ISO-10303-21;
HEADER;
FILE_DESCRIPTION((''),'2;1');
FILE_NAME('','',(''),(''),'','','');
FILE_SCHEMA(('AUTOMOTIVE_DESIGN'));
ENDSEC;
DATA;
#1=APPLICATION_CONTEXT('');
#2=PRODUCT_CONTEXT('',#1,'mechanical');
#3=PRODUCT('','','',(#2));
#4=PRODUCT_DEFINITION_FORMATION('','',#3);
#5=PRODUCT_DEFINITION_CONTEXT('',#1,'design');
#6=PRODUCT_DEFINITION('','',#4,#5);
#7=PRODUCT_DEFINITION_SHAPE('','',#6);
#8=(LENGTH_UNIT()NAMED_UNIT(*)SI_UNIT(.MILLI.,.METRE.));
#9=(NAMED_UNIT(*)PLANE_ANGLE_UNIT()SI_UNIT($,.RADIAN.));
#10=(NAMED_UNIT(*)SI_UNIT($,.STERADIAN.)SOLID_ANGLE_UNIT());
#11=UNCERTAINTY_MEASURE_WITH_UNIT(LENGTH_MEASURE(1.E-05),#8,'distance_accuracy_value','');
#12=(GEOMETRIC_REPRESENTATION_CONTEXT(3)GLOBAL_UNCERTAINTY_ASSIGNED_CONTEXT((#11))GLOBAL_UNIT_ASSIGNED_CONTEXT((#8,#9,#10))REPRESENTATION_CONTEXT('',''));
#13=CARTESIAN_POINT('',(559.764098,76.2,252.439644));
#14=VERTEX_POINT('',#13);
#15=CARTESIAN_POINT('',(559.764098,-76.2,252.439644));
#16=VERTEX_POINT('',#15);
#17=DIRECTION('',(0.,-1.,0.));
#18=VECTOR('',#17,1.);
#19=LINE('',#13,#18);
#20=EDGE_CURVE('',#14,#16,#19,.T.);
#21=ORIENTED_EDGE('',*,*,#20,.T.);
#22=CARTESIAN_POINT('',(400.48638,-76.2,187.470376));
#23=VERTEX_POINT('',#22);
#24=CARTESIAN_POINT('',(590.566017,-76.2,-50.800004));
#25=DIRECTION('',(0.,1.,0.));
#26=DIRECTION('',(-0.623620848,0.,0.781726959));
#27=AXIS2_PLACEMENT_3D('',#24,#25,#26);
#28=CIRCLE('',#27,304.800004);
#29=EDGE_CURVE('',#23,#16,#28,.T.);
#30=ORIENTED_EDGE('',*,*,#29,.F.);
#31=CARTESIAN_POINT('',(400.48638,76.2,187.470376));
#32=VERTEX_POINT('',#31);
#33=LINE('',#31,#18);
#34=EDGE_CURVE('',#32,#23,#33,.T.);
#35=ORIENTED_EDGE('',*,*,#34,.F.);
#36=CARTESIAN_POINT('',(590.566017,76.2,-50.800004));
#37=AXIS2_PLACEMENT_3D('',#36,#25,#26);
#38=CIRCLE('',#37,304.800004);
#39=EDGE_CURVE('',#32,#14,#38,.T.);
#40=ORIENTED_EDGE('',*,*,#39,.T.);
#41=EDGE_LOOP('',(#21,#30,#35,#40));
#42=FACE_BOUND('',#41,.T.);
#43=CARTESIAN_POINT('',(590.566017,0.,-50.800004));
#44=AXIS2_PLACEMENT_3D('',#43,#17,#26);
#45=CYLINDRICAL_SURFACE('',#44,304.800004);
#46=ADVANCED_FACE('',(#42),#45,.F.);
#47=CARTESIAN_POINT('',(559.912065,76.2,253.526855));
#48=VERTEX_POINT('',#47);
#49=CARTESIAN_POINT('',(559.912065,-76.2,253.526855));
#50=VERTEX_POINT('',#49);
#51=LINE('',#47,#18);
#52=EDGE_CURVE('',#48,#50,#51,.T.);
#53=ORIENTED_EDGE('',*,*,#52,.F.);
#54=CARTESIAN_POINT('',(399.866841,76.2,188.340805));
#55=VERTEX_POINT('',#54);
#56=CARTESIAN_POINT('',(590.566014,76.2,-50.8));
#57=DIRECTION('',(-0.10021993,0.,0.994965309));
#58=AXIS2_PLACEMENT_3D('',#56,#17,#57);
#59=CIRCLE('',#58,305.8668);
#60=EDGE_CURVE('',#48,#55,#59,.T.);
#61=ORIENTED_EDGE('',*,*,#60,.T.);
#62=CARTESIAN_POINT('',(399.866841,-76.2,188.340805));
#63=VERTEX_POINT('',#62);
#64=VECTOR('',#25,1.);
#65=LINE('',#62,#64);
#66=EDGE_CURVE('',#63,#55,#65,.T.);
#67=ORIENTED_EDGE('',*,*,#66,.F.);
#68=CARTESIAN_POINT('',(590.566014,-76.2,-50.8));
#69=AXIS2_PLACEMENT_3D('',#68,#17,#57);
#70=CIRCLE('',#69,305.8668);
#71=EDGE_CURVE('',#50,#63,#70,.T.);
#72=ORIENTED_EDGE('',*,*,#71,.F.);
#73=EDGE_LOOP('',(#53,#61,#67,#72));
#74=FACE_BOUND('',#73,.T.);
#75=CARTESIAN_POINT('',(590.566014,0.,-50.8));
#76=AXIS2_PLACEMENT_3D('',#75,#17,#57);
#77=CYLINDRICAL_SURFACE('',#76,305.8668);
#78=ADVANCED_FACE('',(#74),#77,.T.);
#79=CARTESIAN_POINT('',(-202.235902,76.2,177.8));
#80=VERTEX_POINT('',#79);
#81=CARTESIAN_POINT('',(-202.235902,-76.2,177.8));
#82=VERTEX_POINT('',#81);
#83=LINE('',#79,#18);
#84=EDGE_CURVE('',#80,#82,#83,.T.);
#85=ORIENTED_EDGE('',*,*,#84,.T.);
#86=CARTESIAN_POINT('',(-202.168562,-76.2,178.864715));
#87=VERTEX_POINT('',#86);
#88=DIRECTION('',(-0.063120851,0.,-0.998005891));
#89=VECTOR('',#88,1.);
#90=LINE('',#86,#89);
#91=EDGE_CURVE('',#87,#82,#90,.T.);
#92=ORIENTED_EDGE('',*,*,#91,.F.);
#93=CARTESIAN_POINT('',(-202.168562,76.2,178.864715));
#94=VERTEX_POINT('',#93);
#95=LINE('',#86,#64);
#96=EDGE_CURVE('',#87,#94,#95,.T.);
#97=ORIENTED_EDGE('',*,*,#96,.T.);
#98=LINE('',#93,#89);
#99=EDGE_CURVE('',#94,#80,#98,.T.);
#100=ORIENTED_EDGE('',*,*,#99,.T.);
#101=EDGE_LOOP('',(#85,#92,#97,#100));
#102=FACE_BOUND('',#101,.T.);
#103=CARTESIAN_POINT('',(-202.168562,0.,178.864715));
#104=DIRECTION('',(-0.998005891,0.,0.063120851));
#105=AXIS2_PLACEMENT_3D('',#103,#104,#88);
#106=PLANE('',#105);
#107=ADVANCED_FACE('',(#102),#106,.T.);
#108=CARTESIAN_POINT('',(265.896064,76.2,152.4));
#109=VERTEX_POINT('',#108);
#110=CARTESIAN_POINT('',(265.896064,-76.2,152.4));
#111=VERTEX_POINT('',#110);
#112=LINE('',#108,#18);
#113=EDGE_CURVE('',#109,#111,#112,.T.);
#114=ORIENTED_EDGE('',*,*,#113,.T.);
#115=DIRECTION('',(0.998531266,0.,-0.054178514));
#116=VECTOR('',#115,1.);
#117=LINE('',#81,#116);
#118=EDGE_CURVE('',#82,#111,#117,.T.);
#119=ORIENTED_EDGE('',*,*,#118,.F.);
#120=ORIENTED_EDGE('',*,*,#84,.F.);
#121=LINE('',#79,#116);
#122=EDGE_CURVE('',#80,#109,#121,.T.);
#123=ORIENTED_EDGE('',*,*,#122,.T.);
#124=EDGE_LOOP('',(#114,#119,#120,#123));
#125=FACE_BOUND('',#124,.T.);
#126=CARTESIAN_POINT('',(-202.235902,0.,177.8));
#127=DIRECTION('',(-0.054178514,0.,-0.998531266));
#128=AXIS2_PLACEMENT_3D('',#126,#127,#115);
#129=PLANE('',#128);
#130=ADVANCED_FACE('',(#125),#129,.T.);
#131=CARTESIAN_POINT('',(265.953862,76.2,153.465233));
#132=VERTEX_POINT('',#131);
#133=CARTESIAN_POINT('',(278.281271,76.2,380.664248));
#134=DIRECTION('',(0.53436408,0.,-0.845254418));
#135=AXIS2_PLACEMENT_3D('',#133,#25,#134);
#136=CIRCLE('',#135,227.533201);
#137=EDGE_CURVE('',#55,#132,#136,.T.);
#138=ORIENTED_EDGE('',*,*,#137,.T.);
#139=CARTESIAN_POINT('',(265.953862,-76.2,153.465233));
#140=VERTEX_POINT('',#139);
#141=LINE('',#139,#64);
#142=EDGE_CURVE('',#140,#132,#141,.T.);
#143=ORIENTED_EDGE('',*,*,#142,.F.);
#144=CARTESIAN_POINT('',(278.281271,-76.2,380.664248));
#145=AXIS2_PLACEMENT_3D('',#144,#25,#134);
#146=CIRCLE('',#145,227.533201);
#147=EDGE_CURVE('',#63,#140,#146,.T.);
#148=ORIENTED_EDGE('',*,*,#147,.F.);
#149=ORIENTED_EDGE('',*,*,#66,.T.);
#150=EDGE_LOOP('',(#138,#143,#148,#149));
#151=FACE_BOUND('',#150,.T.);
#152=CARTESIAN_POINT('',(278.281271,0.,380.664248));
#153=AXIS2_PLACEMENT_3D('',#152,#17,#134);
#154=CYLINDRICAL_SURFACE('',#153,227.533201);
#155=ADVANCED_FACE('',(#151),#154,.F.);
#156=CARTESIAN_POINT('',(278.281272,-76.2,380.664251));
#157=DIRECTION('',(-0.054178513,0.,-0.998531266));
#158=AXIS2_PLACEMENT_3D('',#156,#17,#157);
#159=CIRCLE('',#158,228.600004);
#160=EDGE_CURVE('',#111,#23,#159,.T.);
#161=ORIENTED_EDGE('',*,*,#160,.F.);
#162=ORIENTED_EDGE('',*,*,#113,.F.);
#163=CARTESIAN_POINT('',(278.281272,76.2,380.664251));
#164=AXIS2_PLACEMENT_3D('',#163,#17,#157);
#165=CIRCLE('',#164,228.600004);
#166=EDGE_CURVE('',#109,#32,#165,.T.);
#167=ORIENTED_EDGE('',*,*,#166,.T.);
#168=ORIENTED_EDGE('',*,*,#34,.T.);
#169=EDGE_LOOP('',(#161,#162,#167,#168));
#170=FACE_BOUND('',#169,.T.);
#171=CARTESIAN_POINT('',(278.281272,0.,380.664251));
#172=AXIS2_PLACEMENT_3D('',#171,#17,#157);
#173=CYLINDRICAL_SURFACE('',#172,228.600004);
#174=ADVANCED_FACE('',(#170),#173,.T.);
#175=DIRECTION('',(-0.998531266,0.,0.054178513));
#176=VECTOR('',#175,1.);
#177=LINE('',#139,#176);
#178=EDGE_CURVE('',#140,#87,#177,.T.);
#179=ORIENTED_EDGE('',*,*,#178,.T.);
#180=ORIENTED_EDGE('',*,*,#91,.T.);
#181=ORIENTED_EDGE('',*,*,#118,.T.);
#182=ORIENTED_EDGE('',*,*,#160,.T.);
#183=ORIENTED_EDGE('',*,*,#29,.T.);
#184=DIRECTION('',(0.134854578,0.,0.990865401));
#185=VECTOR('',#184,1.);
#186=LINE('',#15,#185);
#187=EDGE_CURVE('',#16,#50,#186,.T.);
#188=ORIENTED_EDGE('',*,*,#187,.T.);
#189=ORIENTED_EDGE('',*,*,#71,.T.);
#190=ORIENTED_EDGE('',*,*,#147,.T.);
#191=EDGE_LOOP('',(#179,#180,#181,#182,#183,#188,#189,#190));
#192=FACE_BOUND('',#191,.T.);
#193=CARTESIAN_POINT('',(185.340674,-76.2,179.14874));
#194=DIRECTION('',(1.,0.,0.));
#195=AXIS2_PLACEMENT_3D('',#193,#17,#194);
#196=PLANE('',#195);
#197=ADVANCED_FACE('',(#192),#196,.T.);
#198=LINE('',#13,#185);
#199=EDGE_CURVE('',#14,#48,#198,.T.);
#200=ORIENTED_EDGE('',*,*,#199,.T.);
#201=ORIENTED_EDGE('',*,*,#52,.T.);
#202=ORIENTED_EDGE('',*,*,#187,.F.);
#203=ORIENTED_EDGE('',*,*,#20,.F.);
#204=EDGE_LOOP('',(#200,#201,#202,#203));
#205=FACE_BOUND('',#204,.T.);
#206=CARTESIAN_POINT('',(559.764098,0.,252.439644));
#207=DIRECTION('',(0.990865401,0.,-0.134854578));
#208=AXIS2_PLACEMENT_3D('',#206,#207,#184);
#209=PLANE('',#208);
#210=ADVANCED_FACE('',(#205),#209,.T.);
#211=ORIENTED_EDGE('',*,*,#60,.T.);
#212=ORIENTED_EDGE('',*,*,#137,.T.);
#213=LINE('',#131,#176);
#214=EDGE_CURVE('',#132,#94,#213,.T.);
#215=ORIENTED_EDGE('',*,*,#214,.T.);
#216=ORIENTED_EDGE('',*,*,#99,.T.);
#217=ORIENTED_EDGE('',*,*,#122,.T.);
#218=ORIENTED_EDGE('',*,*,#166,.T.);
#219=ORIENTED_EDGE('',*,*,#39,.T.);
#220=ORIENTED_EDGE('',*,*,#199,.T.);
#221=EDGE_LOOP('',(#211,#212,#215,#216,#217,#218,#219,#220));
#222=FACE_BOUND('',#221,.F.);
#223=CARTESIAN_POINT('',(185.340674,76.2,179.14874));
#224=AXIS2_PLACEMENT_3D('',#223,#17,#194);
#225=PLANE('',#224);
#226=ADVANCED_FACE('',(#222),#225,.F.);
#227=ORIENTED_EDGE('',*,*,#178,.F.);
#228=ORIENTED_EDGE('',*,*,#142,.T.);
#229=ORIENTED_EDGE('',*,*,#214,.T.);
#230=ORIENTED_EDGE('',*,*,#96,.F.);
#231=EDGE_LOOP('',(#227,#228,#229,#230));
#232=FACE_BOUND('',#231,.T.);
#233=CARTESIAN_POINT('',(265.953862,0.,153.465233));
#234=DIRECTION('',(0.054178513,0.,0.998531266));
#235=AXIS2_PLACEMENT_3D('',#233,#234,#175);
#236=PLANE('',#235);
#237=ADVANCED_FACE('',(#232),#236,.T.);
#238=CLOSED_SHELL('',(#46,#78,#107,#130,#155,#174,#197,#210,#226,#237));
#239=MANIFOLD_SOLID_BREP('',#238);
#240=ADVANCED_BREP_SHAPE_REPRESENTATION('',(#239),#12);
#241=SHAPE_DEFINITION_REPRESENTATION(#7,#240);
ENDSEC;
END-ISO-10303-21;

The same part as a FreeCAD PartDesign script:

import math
import FreeCAD as App
import Part
import Sketcher
from FreeCAD import Vector
Q = App.Units.Quantity

doc = App.newDocument("Part")
body = doc.addObject("PartDesign::Body", "Body")

sketch1 = doc.addObject("Sketcher::SketchObject", "Sketch")
body.addObject(sketch1)
sketch1.AttachmentSupport = (doc.XZ_Plane, [""])
sketch1.MapMode = "FlatFace"
sketch1.addGeometry(Part.LineSegment(Vector(-202.168562, 178.864715, 0), Vector(-202.235902, 177.8, 0)), False)
sketch1.addGeometry(Part.LineSegment(Vector(-202.235902, 177.8, 0), Vector(265.896064, 152.4, 0)), False)
sketch1.addGeometry(Part.ArcOfCircle(Part.Circle(Vector(278.281272, 380.664251, 0), Vector(0, 0, 1), 228.600004), math.radians(-93.105721), math.radians(-57.684533)), False)
sketch1.addGeometry(Part.ArcOfCircle(Part.Circle(Vector(590.566017, -50.800004, 0), Vector(0, 0, 1), 304.800004), math.radians(95.799992), math.radians(128.581033)), False)
sketch1.addGeometry(Part.LineSegment(Vector(559.764098, 252.439644, 0), Vector(559.912065, 253.526855, 0)), False)
sketch1.addGeometry(Part.ArcOfCircle(Part.Circle(Vector(590.566014, -50.8, 0), Vector(0, 0, 1), 305.8668), math.radians(95.751835), math.radians(128.570073)), False)
sketch1.addGeometry(Part.ArcOfCircle(Part.Circle(Vector(278.281271, 380.664248, 0), Vector(0, 0, 1), 227.533201), math.radians(-93.10572), math.radians(-57.699205)), False)
sketch1.addGeometry(Part.LineSegment(Vector(265.953862, 153.465233, 0), Vector(-202.168562, 178.864715, 0)), False)
sketch1.addConstraint(Sketcher.Constraint("Coincident", 0, 2, 1, 1))
sketch1.addConstraint(Sketcher.Constraint("Tangent", 1, 2, 2, 1))
sketch1.addConstraint(Sketcher.Constraint("Coincident", 2, 2, 3, 2))
sketch1.addConstraint(Sketcher.Constraint("Coincident", 3, 1, 4, 1))
sketch1.addConstraint(Sketcher.Constraint("Coincident", 4, 2, 5, 1))
sketch1.addConstraint(Sketcher.Constraint("Coincident", 5, 2, 6, 2))
sketch1.addConstraint(Sketcher.Constraint("Tangent", 6, 1, 7, 1))
sketch1.addConstraint(Sketcher.Constraint("Coincident", 7, 2, 0, 1))
sketch1.addConstraint(Sketcher.Constraint("Coincident", 5, 3, 3, 3))
sketch1.addConstraint(Sketcher.Constraint("Coincident", 6, 3, 2, 3))
sketch1.addConstraint(Sketcher.Constraint("Parallel", 1, 7))
sketch1.addConstraint(Sketcher.Constraint("Radius", 2, Q("9.0000001 in")))
sketch1.addConstraint(Sketcher.Constraint("Radius", 3, Q("12.0000002 in")))
sketch1.addConstraint(Sketcher.Constraint("DistanceY", 3, 3, -1, 1, Q("2.0000002 in")))
sketch1.addConstraint(Sketcher.Constraint("DistanceY", -1, 1, 0, 2, Q("7 in")))
sketch1.addConstraint(Sketcher.Constraint("DistanceY", -1, 1, 1, 2, Q("6 in")))
sketch1.addConstraint(Sketcher.Constraint("Radius", 5, Q("12.042 in")))
sketch1.addConstraint(Sketcher.Constraint("Radius", 6, Q("8.958 in")))
sketch1.addConstraint(Sketcher.Constraint("DistanceX", -1, 1, 3, 1, 559.764098))
sketch1.addConstraint(Sketcher.Constraint("Distance", 1, 468.820539))
sketch1.addConstraint(Sketcher.Constraint("DistanceX", -1, 1, 6, 3, 278.281271))
sketch1.addConstraint(Sketcher.Constraint("DistanceX", -1, 1, 2, 2, 400.48638))
sketch1.addConstraint(Sketcher.Constraint("DistanceX", 7, 2, -1, 1, 202.168562))
sketch1.addConstraint(Sketcher.Constraint("DistanceY", 3, 1, 4, 2, 1.087211))
pad1 = doc.addObject("PartDesign::Pad", "Pad")
body.addObject(pad1)
pad1.Profile = sketch1
pad1.Type = "TwoLengths"
pad1.Length = Q("3 in")
pad1.Length2 = Q("3 in")

doc.recompute()
